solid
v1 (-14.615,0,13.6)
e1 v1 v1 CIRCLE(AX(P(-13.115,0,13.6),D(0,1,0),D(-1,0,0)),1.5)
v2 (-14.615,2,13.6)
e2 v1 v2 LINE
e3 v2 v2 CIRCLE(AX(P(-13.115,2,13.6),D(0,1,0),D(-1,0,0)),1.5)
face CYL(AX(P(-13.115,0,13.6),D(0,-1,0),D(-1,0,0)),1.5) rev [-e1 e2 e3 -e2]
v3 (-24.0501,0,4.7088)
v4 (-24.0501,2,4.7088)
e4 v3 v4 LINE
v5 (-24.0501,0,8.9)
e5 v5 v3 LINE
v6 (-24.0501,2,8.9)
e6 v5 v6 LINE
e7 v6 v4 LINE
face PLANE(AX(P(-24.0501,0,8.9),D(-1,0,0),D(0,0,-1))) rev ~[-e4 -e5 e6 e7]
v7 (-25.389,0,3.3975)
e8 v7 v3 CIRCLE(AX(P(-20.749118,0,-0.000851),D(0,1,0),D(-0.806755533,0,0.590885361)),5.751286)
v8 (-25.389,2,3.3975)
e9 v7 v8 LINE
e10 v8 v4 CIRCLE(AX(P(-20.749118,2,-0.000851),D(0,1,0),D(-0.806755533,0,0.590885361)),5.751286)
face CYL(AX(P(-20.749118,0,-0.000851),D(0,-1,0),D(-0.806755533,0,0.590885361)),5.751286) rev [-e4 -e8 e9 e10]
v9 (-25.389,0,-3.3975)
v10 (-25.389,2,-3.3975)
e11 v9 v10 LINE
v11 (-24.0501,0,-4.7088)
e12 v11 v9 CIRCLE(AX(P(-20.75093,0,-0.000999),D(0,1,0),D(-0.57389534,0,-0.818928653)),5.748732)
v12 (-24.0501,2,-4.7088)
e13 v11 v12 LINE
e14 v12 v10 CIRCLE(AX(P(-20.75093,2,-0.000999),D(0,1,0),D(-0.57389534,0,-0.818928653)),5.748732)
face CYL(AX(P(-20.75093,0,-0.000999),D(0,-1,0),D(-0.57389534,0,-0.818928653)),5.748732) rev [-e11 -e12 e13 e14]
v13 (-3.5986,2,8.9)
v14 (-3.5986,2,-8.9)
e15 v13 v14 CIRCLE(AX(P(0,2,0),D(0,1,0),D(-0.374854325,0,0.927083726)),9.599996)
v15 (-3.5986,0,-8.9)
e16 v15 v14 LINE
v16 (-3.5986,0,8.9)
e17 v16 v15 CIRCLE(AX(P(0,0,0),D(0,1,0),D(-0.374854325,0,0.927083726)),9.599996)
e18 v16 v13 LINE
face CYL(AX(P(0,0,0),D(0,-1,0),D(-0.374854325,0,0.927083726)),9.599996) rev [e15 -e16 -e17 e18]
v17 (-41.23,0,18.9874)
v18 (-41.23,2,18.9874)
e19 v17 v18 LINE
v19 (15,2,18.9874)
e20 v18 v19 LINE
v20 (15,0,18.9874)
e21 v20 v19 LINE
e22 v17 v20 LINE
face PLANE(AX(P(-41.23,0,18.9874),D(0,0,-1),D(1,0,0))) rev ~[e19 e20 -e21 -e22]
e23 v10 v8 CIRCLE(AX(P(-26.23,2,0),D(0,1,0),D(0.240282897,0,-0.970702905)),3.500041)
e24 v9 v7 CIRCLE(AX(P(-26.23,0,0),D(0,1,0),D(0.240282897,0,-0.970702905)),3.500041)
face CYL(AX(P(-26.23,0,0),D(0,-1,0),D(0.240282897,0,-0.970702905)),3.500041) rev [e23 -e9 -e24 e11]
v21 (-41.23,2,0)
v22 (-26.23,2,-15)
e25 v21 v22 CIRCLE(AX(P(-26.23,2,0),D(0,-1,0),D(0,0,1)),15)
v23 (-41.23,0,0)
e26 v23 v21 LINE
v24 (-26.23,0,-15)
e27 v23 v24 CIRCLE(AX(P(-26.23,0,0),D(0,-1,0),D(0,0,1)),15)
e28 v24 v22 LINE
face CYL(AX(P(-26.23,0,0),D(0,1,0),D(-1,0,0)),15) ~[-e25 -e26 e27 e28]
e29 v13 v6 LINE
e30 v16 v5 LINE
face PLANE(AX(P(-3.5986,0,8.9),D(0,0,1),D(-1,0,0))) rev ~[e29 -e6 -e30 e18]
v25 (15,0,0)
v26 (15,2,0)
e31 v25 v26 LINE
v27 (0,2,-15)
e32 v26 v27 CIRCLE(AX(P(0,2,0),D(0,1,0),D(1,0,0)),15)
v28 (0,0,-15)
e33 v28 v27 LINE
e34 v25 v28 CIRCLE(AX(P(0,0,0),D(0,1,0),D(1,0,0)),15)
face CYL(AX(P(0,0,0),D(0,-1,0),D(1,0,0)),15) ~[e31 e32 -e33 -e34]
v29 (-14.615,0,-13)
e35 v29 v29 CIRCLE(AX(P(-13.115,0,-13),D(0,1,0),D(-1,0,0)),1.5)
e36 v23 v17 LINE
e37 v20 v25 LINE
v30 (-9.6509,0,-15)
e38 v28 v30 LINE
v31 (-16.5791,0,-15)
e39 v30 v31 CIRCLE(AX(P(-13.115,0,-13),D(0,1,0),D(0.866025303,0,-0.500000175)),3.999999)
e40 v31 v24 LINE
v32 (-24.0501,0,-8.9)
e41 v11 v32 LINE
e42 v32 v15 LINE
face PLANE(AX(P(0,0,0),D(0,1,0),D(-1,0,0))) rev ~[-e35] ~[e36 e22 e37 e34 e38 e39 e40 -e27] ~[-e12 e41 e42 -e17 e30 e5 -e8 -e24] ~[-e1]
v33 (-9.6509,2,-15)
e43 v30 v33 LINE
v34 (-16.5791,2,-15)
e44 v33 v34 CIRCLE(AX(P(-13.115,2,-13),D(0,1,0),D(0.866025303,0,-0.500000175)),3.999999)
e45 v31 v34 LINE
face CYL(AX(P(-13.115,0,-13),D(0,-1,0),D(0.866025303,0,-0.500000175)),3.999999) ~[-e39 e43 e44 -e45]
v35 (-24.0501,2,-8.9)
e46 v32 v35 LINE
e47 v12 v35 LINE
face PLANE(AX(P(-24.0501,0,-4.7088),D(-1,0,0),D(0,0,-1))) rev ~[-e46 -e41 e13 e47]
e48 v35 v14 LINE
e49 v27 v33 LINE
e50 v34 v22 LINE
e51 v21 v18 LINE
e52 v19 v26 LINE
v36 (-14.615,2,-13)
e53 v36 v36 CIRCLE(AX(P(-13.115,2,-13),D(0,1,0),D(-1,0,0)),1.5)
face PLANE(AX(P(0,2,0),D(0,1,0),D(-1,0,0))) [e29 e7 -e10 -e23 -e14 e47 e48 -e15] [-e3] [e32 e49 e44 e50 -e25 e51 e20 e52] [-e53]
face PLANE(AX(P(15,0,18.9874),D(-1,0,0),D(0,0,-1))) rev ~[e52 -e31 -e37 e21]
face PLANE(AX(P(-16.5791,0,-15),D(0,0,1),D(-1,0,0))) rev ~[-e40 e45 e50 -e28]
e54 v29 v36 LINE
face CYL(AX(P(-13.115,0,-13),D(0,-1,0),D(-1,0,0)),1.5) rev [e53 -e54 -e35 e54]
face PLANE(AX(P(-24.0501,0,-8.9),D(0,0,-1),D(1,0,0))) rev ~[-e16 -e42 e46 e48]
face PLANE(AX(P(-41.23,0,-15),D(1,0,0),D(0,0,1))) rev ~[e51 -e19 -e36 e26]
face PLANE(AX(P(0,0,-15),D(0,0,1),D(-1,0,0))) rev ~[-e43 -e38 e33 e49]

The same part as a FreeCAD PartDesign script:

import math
import FreeCAD as App
import Part
import Sketcher
from FreeCAD import Vector
Q = App.Units.Quantity


def edges_at(feature, points):
    """Names of the edges that pass closest to the given points."""
    edges = feature.Shape.Edges
    near = lambda p: min(range(len(edges)), key=lambda i: edges[i].distToShape(Part.Vertex(*p))[0])
    return sorted({f"Edge{near(p) + 1}" for p in points})

doc = App.newDocument("Part")
body = doc.addObject("PartDesign::Body", "Body")

# Sketch on XZ plane
sketch1 = body.newObject("Sketcher::SketchObject", "Sketch")
sketch1.AttachmentSupport = (doc.getObject("XZ_Plane"), [""])
sketch1.MapMode = "FlatFace"
sketch1.addGeometry([
    Part.LineSegment(Vector(15, 18.9874, 0), Vector(15, 0, 0)),  # 0
    Part.ArcOfCircle(Part.Circle(Vector(0, 0, 0), Vector(0, 0, 1), 15), math.radians(-90), math.radians(0)),  # 1
    Part.LineSegment(Vector(0, -15, 0), Vector(-9.6509, -15, 0)),  # 2
    Part.ArcOfCircle(Part.Circle(Vector(-13.115, -13, 0), Vector(0, 0, 1), 3.999999), math.radians(-149.999988), math.radians(-30.000012)),  # 3
    Part.LineSegment(Vector(-16.5791, -15, 0), Vector(-41.23, -15, 0)),  # 4
    Part.LineSegment(Vector(-41.23, -15, 0), Vector(-41.23, 18.9874, 0)),  # 5
    Part.LineSegment(Vector(-41.23, 18.9874, 0), Vector(15, 18.9874, 0)),  # 6
    Part.ArcOfCircle(Part.Circle(Vector(0, 0, 0), Vector(0, 0, 1), 9.599996), math.radians(-112.01531), math.radians(112.01531)),  # 7
    Part.LineSegment(Vector(-3.5986, 8.9, 0), Vector(-24.0501, 8.9, 0)),  # 8
    Part.LineSegment(Vector(-24.0501, 8.9, 0), Vector(-24.0501, 4.7088, 0)),  # 9
    Part.ArcOfCircle(Part.Circle(Vector(-20.749118, -0.000851, 0), Vector(0, 0, 1), 5.751286), math.radians(125.026513), math.radians(143.780139)),  # 10
    Part.ArcOfCircle(Part.Circle(Vector(-26.23, 0, 0), Vector(0, 0, 1), 3.500041), math.radians(76.096762), math.radians(283.903238)),  # 11
    Part.ArcOfCircle(Part.Circle(Vector(-20.75093, -0.000999, 0), Vector(0, 0, 1), 5.748732), math.radians(-143.784343), math.radians(-125.022309)),  # 12
    Part.LineSegment(Vector(-24.0501, -4.7088, 0), Vector(-24.0501, -8.9, 0)),  # 13
    Part.LineSegment(Vector(-24.0501, -8.9, 0), Vector(-3.5986, -8.9, 0)),  # 14
    Part.Circle(Vector(-13.115, -13, 0), Vector(0, 0, 1), 1.5),  # 15
    Part.Circle(Vector(-13.115, 13.6, 0), Vector(0, 0, 1), 1.5),  # 16
], False)
sketch1.addConstraint([
    Sketcher.Constraint("Tangent", 0, 2, 1, 2),
    Sketcher.Constraint("Tangent", 1, 1, 2, 1),
    Sketcher.Constraint("Coincident", 2, 2, 3, 2),
    Sketcher.Constraint("Coincident", 3, 1, 4, 1),
    Sketcher.Constraint("Coincident", 4, 2, 5, 1),
    Sketcher.Constraint("Coincident", 5, 2, 6, 1),
    Sketcher.Constraint("Coincident", 6, 2, 0, 1),
    Sketcher.Constraint("Coincident", 7, 2, 8, 1),
    Sketcher.Constraint("Coincident", 8, 2, 9, 1),
    Sketcher.Constraint("Coincident", 9, 2, 10, 1),
    Sketcher.Constraint("Coincident", 10, 2, 11, 1),
    Sketcher.Constraint("Coincident", 11, 2, 12, 1),
    Sketcher.Constraint("Coincident", 12, 2, 13, 1),
    Sketcher.Constraint("Coincident", 13, 2, 14, 1),
    Sketcher.Constraint("Coincident", 14, 2, 7, 1),
    Sketcher.Constraint("Vertical", 0),
    Sketcher.Constraint("Horizontal", 2),
    Sketcher.Constraint("Horizontal", 4),
    Sketcher.Constraint("Vertical", 5),
    Sketcher.Constraint("Horizontal", 6),
    Sketcher.Constraint("Horizontal", 8),
    Sketcher.Constraint("Vertical", 9),
    Sketcher.Constraint("Vertical", 13),
    Sketcher.Constraint("Horizontal", 14),
    Sketcher.Constraint("Coincident", 1, 3, -1, 1),
    Sketcher.Constraint("Coincident", 7, 3, -1, 1),
    Sketcher.Constraint("Coincident", 15, 3, 3, 3),
    Sketcher.Constraint("Equal", 15, 16),
    Sketcher.Constraint("Symmetric", 10, 2, 11, 2, -1),
    Sketcher.Constraint("Symmetric", 9, 2, 12, 2, -1),
    Sketcher.Constraint("Horizontal", 10, 3, 12, 3),
    Sketcher.Constraint("Horizontal", 2, 2, 3, 1),
    Sketcher.Constraint("Vertical", 15, 3, 16, 3),
    Sketcher.Constraint("Vertical", 7, 2, 14, 2),
    Sketcher.Constraint("Diameter", 15, Q("3 mm")),
    Sketcher.Constraint("Radius", 1, Q("15 mm")),
    Sketcher.Constraint("Radius", 3, Q("4 mm")),
    Sketcher.Constraint("Radius", 7, Q("9.6 mm")),
    Sketcher.Constraint("Radius", 11, Q("3.5 mm")),
    Sketcher.Constraint("DistanceY", 3, 3, -1, 1, Q("13 mm")),
    Sketcher.Constraint("DistanceX", 4, 2, 11, 3, Q("15 mm")),
    Sketcher.Constraint("DistanceX", 6, 1, 6, 2, Q("56.23 mm")),
    Sketcher.Constraint("DistanceY", -1, 1, 16, 3, Q("13.6 mm")),
    Sketcher.Constraint("DistanceY", -1, 1, 7, 2, Q("8.9 mm")),
    Sketcher.Constraint("Radius", 10, Q("5.7513 mm")),
    Sketcher.Constraint("Radius", 12, Q("5.7487 mm")),
    Sketcher.Constraint("DistanceX", 2, 2, 2, 1, Q("9.651 mm")),
    Sketcher.Constraint("DistanceX", 8, 2, -1, 1, Q("24.05 mm")),
    Sketcher.Constraint("DistanceX", 10, 3, 3, 1, Q("4.17 mm")),
    Sketcher.Constraint("DistanceY", 0, 2, 0, 1, Q("18.9874 mm")),
])
pad1 = body.newObject("PartDesign::Pad", "Pad")
pad1.Profile = sketch1
pad1.Length = 2
pad1.Reversed = True
doc.recompute()

fillet = body.newObject("PartDesign::Fillet", "Fillet")
fillet.Base = (pad1, edges_at(pad1, [(-41.23, 1, -15)]))
fillet.Radius = 15

doc.recompute()
